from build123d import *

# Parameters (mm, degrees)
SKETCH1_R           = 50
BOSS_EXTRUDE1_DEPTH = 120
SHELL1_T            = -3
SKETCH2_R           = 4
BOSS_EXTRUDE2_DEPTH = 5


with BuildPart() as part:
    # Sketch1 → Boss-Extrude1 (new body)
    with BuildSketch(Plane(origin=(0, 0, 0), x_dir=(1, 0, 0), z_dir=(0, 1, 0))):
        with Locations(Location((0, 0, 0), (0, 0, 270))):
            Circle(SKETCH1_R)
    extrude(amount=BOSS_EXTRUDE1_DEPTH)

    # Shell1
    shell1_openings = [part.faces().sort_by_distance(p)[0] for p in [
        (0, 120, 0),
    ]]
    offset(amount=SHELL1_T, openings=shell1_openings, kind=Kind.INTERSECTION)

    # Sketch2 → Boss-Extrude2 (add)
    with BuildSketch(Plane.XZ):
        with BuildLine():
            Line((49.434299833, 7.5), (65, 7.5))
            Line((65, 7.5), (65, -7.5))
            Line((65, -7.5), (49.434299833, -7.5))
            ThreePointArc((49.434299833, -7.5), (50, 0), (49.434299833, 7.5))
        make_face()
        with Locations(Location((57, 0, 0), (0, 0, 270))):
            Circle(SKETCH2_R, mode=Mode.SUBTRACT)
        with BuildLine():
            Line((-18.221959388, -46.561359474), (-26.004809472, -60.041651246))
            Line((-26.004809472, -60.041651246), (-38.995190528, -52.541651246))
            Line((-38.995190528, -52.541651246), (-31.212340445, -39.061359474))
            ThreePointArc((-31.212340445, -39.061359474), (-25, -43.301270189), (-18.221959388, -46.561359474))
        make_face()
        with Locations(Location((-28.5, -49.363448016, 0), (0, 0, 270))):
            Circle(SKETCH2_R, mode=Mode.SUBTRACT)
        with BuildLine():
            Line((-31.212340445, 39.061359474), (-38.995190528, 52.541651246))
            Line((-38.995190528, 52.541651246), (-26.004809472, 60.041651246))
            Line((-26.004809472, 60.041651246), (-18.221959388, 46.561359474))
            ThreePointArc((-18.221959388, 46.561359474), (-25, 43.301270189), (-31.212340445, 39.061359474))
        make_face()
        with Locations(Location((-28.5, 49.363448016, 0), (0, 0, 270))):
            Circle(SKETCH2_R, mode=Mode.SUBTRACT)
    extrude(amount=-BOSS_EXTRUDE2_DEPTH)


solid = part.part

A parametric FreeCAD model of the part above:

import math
import FreeCAD as App
import Part
import Sketcher

V = App.Vector
Q = App.Units.Quantity


def faces_at(feature, points):
    """Names of the faces that lie closest to the given points."""
    faces = feature.Shape.Faces
    near = lambda p: min(range(len(faces)), key=lambda i: faces[i].distToShape(Part.Vertex(*p))[0])
    return sorted({f"Face{near(p) + 1}" for p in points})

doc = App.newDocument("Part")
body = doc.addObject("PartDesign::Body", "Body")

sketch1 = doc.addObject("Sketcher::SketchObject", "Sketch")
body.addObject(sketch1)
sketch1.AttachmentSupport = (doc.XZ_Plane, [""])
sketch1.MapMode = "FlatFace"
sketch1.addGeometry(Part.Circle(V(0, 0, 0), V(0, 0, 1), 50), False)
sketch1.addConstraint([
    Sketcher.Constraint("Coincident", 0, 3, -1, 1),
    Sketcher.Constraint("Diameter", 0, Q("100 mm")),
])
pad1 = doc.addObject("PartDesign::Pad", "Pad")
body.addObject(pad1)
pad1.Profile = sketch1
pad1.Length = 120
pad1.Reversed = True
doc.recompute()

thickness = doc.addObject("PartDesign::Thickness", "Thickness")
body.addObject(thickness)
thickness.Base = (pad1, faces_at(pad1, [(0, 120, 0)]))
thickness.Value = 3
thickness.Reversed = True
thickness.Join = "Intersection"

sketch2 = doc.addObject("Sketcher::SketchObject", "Sketch001")
body.addObject(sketch2)
sketch2.AttachmentSupport = (doc.XZ_Plane, [""])
sketch2.MapMode = "FlatFace"
sketch2.addGeometry([
    Part.LineSegment(V(65, 7.5, 0), V(49.4, 7.5, 0)),
    Part.ArcOfCircle(Part.Circle(V(0, 0, 0), V(0, 0, 1), 50), math.radians(-8.63), math.radians(8.63)),
    Part.LineSegment(V(49.4, -7.5, 0), V(65, -7.5, 0)),
    Part.LineSegment(V(65, -7.5, 0), V(65, 7.5, 0)),
    Part.Circle(V(57, 0, 0), V(0, 0, 1), 4),
    Part.LineSegment(V(-26, -60, 0), V(-18.2, -46.6, 0)),
    Part.ArcOfCircle(Part.Circle(V(0, 0, 0), V(0, 0, 1), 50), math.radians(-128.63), math.radians(-111.37)),
    Part.LineSegment(V(-31.2, -39.1, 0), V(-39, -52.5, 0)),
    Part.LineSegment(V(-39, -52.5, 0), V(-26, -60, 0)),
    Part.Circle(V(-28.5, -49.4, 0), V(0, 0, 1), 4),
    Part.LineSegment(V(-39, 52.5, 0), V(-31.2, 39.1, 0)),
    Part.ArcOfCircle(Part.Circle(V(0, 0, 0), V(0, 0, 1), 50), math.radians(111.37), math.radians(128.63)),
    Part.LineSegment(V(-18.2, 46.6, 0), V(-26, 60, 0)),
    Part.LineSegment(V(-26, 60, 0), V(-39, 52.5, 0)),
    Part.Circle(V(-28.5, 49.4, 0), V(0, 0, 1), 4),
], False)
sketch2.addConstraint([
    Sketcher.Constraint("Coincident", 0, 2, 1, 2),
    Sketcher.Constraint("Coincident", 1, 1, 2, 1),
    Sketcher.Constraint("Coincident", 2, 2, 3, 1),
    Sketcher.Constraint("Coincident", 3, 2, 0, 1),
    Sketcher.Constraint("Coincident", 5, 2, 6, 2),
    Sketcher.Constraint("Coincident", 6, 1, 7, 1),
    Sketcher.Constraint("Coincident", 7, 2, 8, 1),
    Sketcher.Constraint("Coincident", 8, 2, 5, 1),
    Sketcher.Constraint("Coincident", 10, 2, 11, 2),
    Sketcher.Constraint("Coincident", 11, 1, 12, 1),
    Sketcher.Constraint("Coincident", 12, 2, 13, 1),
    Sketcher.Constraint("Coincident", 13, 2, 10, 1),
    Sketcher.Constraint("Horizontal", 0),
    Sketcher.Constraint("Horizontal", 2),
    Sketcher.Constraint("Vertical", 3),
    Sketcher.Constraint("Coincident", 1, 3, -1, 1),
    Sketcher.Constraint("Coincident", 6, 3, -1, 1),
    Sketcher.Constraint("Coincident", 11, 3, -1, 1),
    Sketcher.Constraint("Equal", 1, 6),
    Sketcher.Constraint("Equal", 4, 9),
    Sketcher.Constraint("Equal", 6, 11),
    Sketcher.Constraint("Equal", 9, 14),
    Sketcher.Constraint("Symmetric", 9, 3, 14, 3, -1),
    Sketcher.Constraint("Symmetric", 8, 2, 12, 2, -1),
    Sketcher.Constraint("Symmetric", 7, 2, 13, 2, -1),
    Sketcher.Constraint("PointOnObject", 4, 3, -1),
    Sketcher.Constraint("Parallel", 5, 7),
    Sketcher.Constraint("Perpendicular", 7, 8),
    Sketcher.Constraint("Parallel", 10, 12),
    Sketcher.Constraint("Perpendicular", 12, 13),
    Sketcher.Constraint("Vertical", 0, 2, 1, 1),
    Sketcher.Constraint("Equal", 5, 7),
    Sketcher.Constraint("Diameter", 4, Q("8 mm")),
    Sketcher.Constraint("Radius", 1, Q("50 mm")),
    Sketcher.Constraint("DistanceY", 3, 1, 3, 2, Q("15 mm")),
    Sketcher.Constraint("Angle", 5, Q("60 deg")),
    Sketcher.Constraint("Distance", 8, Q("15 mm")),
    Sketcher.Constraint("DistanceX", -1, 1, 4, 3, Q("57 mm")),
    Sketcher.Constraint("DistanceX", -1, 1, 2, 2, Q("65 mm")),
    Sketcher.Constraint("DistanceX", 9, 3, -1, 1, Q("28.5 mm")),
    Sketcher.Constraint("Distance", 5, Q("15.5657 mm")),
    Sketcher.Constraint("DistanceY", 9, 3, -1, 1, Q("49.363448 mm")),
])
pad2 = doc.addObject("PartDesign::Pad", "Pad001")
body.addObject(pad2)
pad2.Profile = sketch2
pad2.Length = 5
pad2.Reversed = True

doc.recompute()
